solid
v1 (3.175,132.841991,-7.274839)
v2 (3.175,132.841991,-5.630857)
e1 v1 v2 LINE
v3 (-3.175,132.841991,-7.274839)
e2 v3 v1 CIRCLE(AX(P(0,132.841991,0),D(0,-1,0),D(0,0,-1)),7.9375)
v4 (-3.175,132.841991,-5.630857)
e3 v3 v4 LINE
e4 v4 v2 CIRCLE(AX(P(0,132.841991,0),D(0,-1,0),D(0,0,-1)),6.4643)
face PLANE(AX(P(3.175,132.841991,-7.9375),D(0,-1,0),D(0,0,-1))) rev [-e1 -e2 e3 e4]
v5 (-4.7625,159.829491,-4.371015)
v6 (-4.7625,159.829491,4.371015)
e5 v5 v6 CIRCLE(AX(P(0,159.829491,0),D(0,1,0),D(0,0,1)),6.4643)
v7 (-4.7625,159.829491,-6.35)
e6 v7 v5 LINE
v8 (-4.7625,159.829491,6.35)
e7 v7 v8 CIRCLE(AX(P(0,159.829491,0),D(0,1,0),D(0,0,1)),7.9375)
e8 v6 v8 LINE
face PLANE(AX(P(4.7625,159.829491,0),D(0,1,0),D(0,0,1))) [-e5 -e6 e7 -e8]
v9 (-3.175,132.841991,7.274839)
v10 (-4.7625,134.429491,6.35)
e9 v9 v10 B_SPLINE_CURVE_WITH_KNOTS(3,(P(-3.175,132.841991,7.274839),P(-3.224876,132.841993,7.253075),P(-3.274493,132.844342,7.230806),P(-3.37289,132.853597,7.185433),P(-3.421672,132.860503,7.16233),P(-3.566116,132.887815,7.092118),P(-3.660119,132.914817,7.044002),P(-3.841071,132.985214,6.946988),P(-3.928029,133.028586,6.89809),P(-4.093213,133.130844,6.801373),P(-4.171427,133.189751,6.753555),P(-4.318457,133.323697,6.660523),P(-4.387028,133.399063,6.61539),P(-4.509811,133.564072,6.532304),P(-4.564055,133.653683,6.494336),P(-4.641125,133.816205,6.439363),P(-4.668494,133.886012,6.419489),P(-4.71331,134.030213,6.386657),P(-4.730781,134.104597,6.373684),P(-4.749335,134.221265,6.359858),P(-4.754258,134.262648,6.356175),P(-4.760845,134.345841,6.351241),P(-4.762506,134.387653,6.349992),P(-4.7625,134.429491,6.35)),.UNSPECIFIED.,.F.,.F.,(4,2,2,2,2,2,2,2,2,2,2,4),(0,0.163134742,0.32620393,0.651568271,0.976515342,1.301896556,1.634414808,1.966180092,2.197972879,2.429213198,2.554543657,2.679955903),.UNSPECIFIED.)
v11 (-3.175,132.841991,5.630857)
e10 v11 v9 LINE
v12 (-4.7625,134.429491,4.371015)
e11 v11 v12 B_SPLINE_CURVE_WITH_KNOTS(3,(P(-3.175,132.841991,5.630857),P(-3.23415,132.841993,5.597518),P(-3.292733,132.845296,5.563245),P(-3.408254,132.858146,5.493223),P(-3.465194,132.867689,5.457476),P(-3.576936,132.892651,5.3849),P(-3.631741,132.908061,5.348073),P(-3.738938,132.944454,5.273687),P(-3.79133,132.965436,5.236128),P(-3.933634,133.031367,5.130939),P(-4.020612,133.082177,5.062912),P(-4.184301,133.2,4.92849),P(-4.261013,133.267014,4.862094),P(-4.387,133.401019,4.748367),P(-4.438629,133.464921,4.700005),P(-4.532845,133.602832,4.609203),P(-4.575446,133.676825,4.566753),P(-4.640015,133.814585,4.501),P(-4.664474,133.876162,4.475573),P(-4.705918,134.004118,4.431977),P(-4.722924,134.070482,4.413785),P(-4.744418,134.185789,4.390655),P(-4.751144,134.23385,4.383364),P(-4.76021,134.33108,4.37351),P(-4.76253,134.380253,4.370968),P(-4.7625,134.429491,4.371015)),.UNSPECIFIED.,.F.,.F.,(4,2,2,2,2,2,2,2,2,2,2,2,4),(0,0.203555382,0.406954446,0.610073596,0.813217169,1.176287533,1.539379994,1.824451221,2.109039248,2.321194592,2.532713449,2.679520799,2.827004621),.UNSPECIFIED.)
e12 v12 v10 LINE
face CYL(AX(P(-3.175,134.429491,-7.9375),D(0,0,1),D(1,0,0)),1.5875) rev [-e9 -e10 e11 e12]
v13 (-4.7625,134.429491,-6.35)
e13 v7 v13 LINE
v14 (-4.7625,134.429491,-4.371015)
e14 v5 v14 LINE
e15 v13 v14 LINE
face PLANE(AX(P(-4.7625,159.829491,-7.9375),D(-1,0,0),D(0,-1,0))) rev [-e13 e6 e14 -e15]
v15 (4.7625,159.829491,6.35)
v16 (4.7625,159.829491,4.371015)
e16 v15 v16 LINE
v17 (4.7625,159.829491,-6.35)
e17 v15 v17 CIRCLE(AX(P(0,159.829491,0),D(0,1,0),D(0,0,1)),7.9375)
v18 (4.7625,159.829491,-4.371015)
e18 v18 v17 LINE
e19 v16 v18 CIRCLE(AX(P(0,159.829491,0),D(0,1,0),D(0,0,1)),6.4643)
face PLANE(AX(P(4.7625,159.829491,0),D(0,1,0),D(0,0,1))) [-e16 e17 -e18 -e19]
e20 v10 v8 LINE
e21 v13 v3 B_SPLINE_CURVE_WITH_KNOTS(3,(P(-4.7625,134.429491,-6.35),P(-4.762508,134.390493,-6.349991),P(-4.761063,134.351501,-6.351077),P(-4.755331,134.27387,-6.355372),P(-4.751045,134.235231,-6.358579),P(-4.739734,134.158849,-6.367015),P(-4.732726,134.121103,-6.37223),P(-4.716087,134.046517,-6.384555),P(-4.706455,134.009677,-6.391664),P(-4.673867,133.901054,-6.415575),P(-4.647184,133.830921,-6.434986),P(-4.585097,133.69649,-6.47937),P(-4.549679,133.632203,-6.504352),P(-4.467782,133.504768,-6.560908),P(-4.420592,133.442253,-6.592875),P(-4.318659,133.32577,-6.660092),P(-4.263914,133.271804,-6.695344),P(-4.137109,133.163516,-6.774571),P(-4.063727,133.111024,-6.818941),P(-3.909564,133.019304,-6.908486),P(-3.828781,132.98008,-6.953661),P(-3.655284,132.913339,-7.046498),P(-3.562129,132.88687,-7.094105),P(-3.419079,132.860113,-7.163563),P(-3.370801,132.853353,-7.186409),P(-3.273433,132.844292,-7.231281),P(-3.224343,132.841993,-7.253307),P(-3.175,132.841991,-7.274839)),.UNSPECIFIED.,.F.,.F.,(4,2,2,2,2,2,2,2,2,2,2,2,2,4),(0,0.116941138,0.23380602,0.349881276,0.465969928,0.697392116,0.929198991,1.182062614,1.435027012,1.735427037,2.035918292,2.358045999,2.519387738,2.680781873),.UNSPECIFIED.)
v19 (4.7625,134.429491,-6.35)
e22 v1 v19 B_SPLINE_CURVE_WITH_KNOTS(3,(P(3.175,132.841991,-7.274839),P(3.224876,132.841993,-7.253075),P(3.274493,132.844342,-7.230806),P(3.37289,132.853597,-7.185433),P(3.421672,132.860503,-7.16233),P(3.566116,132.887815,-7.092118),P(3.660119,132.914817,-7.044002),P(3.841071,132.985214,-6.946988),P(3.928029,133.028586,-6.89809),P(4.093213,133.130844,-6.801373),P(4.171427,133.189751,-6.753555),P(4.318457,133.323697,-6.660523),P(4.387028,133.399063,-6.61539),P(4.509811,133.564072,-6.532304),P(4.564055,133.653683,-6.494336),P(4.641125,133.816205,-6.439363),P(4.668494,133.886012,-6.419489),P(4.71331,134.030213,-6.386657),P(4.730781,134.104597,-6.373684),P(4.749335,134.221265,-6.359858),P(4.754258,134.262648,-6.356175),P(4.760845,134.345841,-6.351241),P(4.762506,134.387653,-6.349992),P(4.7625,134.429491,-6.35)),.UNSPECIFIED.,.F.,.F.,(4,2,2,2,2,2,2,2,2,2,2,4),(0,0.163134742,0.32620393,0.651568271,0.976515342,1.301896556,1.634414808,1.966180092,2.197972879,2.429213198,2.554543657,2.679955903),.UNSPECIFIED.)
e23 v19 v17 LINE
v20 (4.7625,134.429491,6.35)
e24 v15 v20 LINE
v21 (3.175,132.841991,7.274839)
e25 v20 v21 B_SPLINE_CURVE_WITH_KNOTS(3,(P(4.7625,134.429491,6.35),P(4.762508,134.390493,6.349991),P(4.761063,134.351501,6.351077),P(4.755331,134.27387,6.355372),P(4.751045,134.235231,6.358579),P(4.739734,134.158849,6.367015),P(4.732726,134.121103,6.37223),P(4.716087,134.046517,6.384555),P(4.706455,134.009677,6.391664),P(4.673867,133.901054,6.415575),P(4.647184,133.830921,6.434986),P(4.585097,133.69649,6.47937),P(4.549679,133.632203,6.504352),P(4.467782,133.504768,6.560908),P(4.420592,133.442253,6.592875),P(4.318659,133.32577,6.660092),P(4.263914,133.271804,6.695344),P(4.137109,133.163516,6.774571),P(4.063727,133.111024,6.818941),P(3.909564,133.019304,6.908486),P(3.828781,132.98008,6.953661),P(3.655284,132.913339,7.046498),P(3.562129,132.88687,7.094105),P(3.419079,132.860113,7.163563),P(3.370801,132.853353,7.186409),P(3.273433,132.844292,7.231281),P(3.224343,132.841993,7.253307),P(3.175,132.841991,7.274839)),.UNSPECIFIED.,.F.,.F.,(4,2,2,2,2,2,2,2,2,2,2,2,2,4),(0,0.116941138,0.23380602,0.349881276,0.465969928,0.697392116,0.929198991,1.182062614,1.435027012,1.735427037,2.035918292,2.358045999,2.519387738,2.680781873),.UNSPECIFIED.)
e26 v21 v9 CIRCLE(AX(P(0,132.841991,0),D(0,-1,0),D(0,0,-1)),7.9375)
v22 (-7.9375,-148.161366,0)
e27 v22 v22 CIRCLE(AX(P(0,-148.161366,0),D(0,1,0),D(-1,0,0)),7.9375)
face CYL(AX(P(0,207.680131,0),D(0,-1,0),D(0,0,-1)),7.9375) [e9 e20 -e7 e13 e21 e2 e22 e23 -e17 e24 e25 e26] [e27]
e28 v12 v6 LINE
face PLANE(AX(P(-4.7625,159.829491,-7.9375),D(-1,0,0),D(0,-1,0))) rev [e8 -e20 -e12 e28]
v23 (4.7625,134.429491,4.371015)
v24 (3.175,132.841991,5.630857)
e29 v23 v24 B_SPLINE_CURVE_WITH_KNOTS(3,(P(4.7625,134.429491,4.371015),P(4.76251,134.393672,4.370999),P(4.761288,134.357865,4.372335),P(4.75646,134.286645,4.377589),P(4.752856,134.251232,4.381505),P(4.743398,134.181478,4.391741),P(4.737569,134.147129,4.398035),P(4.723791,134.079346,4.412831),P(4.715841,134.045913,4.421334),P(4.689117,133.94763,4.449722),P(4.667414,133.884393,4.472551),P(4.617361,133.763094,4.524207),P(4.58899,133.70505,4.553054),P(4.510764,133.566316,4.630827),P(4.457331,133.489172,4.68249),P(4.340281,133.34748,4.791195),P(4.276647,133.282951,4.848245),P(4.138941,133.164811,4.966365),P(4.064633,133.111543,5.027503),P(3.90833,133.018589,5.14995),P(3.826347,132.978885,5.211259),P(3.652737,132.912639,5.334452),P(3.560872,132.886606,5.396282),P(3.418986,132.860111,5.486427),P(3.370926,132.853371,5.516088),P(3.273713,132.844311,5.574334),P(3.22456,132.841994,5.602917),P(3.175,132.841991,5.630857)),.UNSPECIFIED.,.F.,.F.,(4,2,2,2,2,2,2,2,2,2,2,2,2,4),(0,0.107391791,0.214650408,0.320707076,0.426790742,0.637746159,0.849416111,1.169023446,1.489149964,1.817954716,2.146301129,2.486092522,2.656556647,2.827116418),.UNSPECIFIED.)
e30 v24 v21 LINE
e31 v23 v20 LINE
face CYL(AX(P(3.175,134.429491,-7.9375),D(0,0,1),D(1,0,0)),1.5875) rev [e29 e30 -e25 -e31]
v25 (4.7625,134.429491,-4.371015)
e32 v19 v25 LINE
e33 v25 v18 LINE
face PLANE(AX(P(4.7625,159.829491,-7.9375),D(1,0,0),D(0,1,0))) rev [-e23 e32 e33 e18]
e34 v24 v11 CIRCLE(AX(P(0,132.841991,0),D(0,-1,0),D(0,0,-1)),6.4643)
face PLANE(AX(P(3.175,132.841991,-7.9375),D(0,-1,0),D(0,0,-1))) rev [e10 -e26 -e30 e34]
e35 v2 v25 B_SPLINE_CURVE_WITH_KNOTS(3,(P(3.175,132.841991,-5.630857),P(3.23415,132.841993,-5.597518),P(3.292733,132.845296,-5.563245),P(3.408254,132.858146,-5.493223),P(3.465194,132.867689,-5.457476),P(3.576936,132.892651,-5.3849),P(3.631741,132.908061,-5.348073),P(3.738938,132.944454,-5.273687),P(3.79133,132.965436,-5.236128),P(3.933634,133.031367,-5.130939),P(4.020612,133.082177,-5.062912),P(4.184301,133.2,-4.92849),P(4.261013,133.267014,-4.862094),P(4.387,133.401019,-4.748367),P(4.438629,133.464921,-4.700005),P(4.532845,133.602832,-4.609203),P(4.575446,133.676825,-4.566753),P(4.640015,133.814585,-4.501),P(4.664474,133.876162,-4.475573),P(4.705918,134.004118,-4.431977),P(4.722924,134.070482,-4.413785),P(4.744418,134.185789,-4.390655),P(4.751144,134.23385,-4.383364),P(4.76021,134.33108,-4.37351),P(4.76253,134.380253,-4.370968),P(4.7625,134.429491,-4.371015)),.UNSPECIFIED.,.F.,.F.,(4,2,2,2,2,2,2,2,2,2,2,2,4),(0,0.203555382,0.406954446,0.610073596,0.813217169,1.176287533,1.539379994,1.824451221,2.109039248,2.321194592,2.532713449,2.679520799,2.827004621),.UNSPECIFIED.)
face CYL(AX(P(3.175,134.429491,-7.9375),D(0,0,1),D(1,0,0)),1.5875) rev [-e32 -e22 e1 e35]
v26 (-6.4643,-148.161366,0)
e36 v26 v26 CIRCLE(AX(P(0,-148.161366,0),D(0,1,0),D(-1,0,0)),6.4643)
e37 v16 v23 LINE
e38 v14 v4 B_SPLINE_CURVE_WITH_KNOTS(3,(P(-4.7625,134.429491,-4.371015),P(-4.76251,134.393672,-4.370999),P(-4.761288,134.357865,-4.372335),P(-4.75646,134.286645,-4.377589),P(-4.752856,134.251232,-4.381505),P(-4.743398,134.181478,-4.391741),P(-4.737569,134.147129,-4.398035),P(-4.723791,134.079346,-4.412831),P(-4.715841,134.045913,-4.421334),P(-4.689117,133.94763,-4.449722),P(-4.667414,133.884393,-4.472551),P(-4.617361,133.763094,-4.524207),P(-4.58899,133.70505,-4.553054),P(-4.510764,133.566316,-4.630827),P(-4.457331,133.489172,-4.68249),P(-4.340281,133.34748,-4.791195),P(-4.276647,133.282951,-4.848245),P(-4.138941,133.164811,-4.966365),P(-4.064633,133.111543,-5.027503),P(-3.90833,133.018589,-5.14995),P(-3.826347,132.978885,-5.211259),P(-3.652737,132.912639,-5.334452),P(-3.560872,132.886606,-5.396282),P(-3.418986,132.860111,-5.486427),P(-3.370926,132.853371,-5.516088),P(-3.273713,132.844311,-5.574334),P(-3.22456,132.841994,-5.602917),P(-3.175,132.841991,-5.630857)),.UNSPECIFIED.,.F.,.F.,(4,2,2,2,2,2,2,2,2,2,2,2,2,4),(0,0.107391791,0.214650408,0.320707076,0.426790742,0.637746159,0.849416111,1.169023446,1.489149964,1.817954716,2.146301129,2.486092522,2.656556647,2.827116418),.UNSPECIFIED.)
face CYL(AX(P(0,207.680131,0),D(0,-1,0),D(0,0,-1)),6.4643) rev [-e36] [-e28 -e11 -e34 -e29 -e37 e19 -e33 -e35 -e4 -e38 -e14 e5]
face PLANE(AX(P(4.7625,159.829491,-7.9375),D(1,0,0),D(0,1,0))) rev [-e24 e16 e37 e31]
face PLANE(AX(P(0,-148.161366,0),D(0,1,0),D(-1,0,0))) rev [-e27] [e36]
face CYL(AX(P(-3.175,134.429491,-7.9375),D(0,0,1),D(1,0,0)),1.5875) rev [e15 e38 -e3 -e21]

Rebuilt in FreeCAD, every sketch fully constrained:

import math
import FreeCAD as App
import Part
import Sketcher
Q = App.Units.Quantity

doc = App.newDocument("Part")
body = doc.addObject("PartDesign::Body", "Body")

sketch1 = body.newObject("Sketcher::SketchObject", "Sketch")
sketch1.AttachmentSupport = (doc.getObject("XZ_Plane"), [""])
sketch1.MapMode = "FlatFace"
sketch1.AttachmentOffset = App.Placement(App.Vector(0, 0, 148.161366), App.Rotation())
sketch1.addGeometry([
    Part.Circle(App.Vector(0, 0, 0), App.Vector(0, 0, 1), 8),
    Part.Circle(App.Vector(0, 0, 0), App.Vector(0, 0, 1), 6),
], False)
sketch1.addConstraint([
    Sketcher.Constraint("Coincident", 0, 3, -1, 1),
    Sketcher.Constraint("Coincident", 1, 3, -1, 1),
    Sketcher.Constraint("Diameter", 0, Q("0.625 in")),
    Sketcher.Constraint("Diameter", 1, Q("0.509 in")),
])
pad1 = body.newObject("PartDesign::Pad", "Pad")
pad1.Profile = sketch1
pad1.Length = 307.990856
pad1.Reversed = True

sketch2 = body.newObject("Sketcher::SketchObject", "Sketch001")
sketch2.AttachmentSupport = (doc.getObject("XY_Plane"), [""])
sketch2.MapMode = "FlatFace"
sketch2.addGeometry([
    Part.LineSegment(App.Vector(4.8, 159.8, 0), App.Vector(-4.8, 159.8, 0)),
    Part.LineSegment(App.Vector(-4.8, 159.8, 0), App.Vector(-4.8, 134.4, 0)),
    Part.ArcOfCircle(Part.Circle(App.Vector(-3.2, 134.4, 0), App.Vector(0, 0, 1), 1.6), math.radians(180), math.radians(270)),
    Part.LineSegment(App.Vector(-3.2, 132.8, 0), App.Vector(3.2, 132.8, 0)),
    Part.ArcOfCircle(Part.Circle(App.Vector(3.2, 134.4, 0), App.Vector(0, 0, 1), 1.6), math.radians(-90), math.radians(0)),
    Part.LineSegment(App.Vector(4.8, 134.4, 0), App.Vector(4.8, 159.8, 0)),
], False)
sketch2.addConstraint([
    Sketcher.Constraint("Coincident", 0, 2, 1, 1),
    Sketcher.Constraint("Tangent", 1, 2, 2, 1),
    Sketcher.Constraint("Tangent", 2, 2, 3, 1),
    Sketcher.Constraint("Tangent", 3, 2, 4, 1),
    Sketcher.Constraint("Tangent", 4, 2, 5, 1),
    Sketcher.Constraint("Coincident", 5, 2, 0, 1),
    Sketcher.Constraint("Horizontal", 0),
    Sketcher.Constraint("Vertical", 1),
    Sketcher.Constraint("Horizontal", 3),
    Sketcher.Constraint("Vertical", 5),
    Sketcher.Constraint("Equal", 2, 4),
    Sketcher.Constraint("DistanceY", 1, 2, 1, 1, Q("1 in")),
    Sketcher.Constraint("Radius", 2, Q("0.0625 in")),
    Sketcher.Constraint("DistanceX", 3, 1, 3, 2, Q("0.25 in")),
    Sketcher.Constraint("DistanceX", 2, 3, -1, 1, Q("0.125 in")),
    Sketcher.Constraint("DistanceY", -1, 1, 2, 3, Q("134.429491 mm")),
])
pocket1 = body.newObject("PartDesign::Pocket", "Pocket")
pocket1.Profile = sketch2
pocket1.Type = "ThroughAll"
pocket1.Midplane = True

doc.recompute()
